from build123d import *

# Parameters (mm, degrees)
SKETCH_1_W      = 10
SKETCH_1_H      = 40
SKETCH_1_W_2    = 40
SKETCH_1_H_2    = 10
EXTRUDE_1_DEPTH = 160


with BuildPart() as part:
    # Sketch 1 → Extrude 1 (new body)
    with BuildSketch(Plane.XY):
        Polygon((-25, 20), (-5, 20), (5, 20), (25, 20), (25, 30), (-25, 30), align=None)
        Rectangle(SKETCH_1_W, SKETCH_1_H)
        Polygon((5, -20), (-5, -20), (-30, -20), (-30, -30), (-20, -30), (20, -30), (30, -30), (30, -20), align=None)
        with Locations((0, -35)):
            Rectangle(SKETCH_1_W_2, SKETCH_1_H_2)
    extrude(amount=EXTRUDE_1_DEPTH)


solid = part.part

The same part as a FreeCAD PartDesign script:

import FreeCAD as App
import Part
import Sketcher
Q = App.Units.Quantity

doc = App.newDocument("Part")
body = doc.addObject("PartDesign::Body", "Body")

# Sketch on XY plane
sketch1 = body.newObject("Sketcher::SketchObject", "Sketch")
sketch1.AttachmentSupport = (doc.getObject("XY_Plane"), [""])
sketch1.MapMode = "FlatFace"
sketch1.addGeometry([
    Part.LineSegment(App.Vector(-25, 20, 0), App.Vector(-5, 20, 0)),  # 0
    Part.LineSegment(App.Vector(-5, 20, 0), App.Vector(-5, -20, 0)),  # 1
    Part.LineSegment(App.Vector(-5, -20, 0), App.Vector(-30, -20, 0)),  # 2
    Part.LineSegment(App.Vector(-30, -20, 0), App.Vector(-30, -30, 0)),  # 3
    Part.LineSegment(App.Vector(-30, -30, 0), App.Vector(-20, -30, 0)),  # 4
    Part.LineSegment(App.Vector(-20, -30, 0), App.Vector(-20, -40, 0)),  # 5
    Part.LineSegment(App.Vector(-20, -40, 0), App.Vector(20, -40, 0)),  # 6
    Part.LineSegment(App.Vector(20, -40, 0), App.Vector(20, -30, 0)),  # 7
    Part.LineSegment(App.Vector(20, -30, 0), App.Vector(30, -30, 0)),  # 8
    Part.LineSegment(App.Vector(30, -30, 0), App.Vector(30, -20, 0)),  # 9
    Part.LineSegment(App.Vector(30, -20, 0), App.Vector(5, -20, 0)),  # 10
    Part.LineSegment(App.Vector(5, -20, 0), App.Vector(5, 20, 0)),  # 11
    Part.LineSegment(App.Vector(5, 20, 0), App.Vector(25, 20, 0)),  # 12
    Part.LineSegment(App.Vector(25, 20, 0), App.Vector(25, 30, 0)),  # 13
    Part.LineSegment(App.Vector(25, 30, 0), App.Vector(-25, 30, 0)),  # 14
    Part.LineSegment(App.Vector(-25, 30, 0), App.Vector(-25, 20, 0)),  # 15
], False)
sketch1.addConstraint([
    Sketcher.Constraint("Coincident", 0, 2, 1, 1),
    Sketcher.Constraint("Coincident", 1, 2, 2, 1),
    Sketcher.Constraint("Coincident", 2, 2, 3, 1),
    Sketcher.Constraint("Coincident", 3, 2, 4, 1),
    Sketcher.Constraint("Coincident", 4, 2, 5, 1),
    Sketcher.Constraint("Coincident", 5, 2, 6, 1),
    Sketcher.Constraint("Coincident", 6, 2, 7, 1),
    Sketcher.Constraint("Coincident", 7, 2, 8, 1),
    Sketcher.Constraint("Coincident", 8, 2, 9, 1),
    Sketcher.Constraint("Coincident", 9, 2, 10, 1),
    Sketcher.Constraint("Coincident", 10, 2, 11, 1),
    Sketcher.Constraint("Coincident", 11, 2, 12, 1),
    Sketcher.Constraint("Coincident", 12, 2, 13, 1),
    Sketcher.Constraint("Coincident", 13, 2, 14, 1),
    Sketcher.Constraint("Coincident", 14, 2, 15, 1),
    Sketcher.Constraint("Coincident", 15, 2, 0, 1),
    Sketcher.Constraint("Horizontal", 0),
    Sketcher.Constraint("Vertical", 1),
    Sketcher.Constraint("Horizontal", 2),
    Sketcher.Constraint("Vertical", 3),
    Sketcher.Constraint("Horizontal", 4),
    Sketcher.Constraint("Vertical", 5),
    Sketcher.Constraint("Horizontal", 6),
    Sketcher.Constraint("Vertical", 7),
    Sketcher.Constraint("Horizontal", 8),
    Sketcher.Constraint("Vertical", 9),
    Sketcher.Constraint("Horizontal", 10),
    Sketcher.Constraint("Vertical", 11),
    Sketcher.Constraint("Horizontal", 12),
    Sketcher.Constraint("Vertical", 13),
    Sketcher.Constraint("Horizontal", 14),
    Sketcher.Constraint("Vertical", 15),
    Sketcher.Constraint("Symmetric", 0, 2, 10, 2, -1, 1),
    Sketcher.Constraint("Symmetric", 4, 2, 7, 2, -2),
    Sketcher.Constraint("Symmetric", 2, 2, 9, 2, -2),
    Sketcher.Constraint("Symmetric", 12, 2, 15, 2, -2),
    Sketcher.Constraint("Equal", 6, 1),
    Sketcher.Constraint("Equal", 8, 3),
    Sketcher.Constraint("Equal", 3, 5),
    Sketcher.Constraint("Equal", 9, 13),
    Sketcher.Constraint("DistanceX", 0, 1, 0, 2, Q("20 mm")),
    Sketcher.Constraint("DistanceX", 2, 2, 2, 1, Q("25 mm")),
    Sketcher.Constraint("DistanceX", 4, 1, 4, 2, Q("10 mm")),
    Sketcher.Constraint("DistanceX", 6, 1, 6, 2, Q("40 mm")),
])
pad1 = body.newObject("PartDesign::Pad", "Pad")
pad1.Profile = sketch1
pad1.Length = 160

doc.recompute()
